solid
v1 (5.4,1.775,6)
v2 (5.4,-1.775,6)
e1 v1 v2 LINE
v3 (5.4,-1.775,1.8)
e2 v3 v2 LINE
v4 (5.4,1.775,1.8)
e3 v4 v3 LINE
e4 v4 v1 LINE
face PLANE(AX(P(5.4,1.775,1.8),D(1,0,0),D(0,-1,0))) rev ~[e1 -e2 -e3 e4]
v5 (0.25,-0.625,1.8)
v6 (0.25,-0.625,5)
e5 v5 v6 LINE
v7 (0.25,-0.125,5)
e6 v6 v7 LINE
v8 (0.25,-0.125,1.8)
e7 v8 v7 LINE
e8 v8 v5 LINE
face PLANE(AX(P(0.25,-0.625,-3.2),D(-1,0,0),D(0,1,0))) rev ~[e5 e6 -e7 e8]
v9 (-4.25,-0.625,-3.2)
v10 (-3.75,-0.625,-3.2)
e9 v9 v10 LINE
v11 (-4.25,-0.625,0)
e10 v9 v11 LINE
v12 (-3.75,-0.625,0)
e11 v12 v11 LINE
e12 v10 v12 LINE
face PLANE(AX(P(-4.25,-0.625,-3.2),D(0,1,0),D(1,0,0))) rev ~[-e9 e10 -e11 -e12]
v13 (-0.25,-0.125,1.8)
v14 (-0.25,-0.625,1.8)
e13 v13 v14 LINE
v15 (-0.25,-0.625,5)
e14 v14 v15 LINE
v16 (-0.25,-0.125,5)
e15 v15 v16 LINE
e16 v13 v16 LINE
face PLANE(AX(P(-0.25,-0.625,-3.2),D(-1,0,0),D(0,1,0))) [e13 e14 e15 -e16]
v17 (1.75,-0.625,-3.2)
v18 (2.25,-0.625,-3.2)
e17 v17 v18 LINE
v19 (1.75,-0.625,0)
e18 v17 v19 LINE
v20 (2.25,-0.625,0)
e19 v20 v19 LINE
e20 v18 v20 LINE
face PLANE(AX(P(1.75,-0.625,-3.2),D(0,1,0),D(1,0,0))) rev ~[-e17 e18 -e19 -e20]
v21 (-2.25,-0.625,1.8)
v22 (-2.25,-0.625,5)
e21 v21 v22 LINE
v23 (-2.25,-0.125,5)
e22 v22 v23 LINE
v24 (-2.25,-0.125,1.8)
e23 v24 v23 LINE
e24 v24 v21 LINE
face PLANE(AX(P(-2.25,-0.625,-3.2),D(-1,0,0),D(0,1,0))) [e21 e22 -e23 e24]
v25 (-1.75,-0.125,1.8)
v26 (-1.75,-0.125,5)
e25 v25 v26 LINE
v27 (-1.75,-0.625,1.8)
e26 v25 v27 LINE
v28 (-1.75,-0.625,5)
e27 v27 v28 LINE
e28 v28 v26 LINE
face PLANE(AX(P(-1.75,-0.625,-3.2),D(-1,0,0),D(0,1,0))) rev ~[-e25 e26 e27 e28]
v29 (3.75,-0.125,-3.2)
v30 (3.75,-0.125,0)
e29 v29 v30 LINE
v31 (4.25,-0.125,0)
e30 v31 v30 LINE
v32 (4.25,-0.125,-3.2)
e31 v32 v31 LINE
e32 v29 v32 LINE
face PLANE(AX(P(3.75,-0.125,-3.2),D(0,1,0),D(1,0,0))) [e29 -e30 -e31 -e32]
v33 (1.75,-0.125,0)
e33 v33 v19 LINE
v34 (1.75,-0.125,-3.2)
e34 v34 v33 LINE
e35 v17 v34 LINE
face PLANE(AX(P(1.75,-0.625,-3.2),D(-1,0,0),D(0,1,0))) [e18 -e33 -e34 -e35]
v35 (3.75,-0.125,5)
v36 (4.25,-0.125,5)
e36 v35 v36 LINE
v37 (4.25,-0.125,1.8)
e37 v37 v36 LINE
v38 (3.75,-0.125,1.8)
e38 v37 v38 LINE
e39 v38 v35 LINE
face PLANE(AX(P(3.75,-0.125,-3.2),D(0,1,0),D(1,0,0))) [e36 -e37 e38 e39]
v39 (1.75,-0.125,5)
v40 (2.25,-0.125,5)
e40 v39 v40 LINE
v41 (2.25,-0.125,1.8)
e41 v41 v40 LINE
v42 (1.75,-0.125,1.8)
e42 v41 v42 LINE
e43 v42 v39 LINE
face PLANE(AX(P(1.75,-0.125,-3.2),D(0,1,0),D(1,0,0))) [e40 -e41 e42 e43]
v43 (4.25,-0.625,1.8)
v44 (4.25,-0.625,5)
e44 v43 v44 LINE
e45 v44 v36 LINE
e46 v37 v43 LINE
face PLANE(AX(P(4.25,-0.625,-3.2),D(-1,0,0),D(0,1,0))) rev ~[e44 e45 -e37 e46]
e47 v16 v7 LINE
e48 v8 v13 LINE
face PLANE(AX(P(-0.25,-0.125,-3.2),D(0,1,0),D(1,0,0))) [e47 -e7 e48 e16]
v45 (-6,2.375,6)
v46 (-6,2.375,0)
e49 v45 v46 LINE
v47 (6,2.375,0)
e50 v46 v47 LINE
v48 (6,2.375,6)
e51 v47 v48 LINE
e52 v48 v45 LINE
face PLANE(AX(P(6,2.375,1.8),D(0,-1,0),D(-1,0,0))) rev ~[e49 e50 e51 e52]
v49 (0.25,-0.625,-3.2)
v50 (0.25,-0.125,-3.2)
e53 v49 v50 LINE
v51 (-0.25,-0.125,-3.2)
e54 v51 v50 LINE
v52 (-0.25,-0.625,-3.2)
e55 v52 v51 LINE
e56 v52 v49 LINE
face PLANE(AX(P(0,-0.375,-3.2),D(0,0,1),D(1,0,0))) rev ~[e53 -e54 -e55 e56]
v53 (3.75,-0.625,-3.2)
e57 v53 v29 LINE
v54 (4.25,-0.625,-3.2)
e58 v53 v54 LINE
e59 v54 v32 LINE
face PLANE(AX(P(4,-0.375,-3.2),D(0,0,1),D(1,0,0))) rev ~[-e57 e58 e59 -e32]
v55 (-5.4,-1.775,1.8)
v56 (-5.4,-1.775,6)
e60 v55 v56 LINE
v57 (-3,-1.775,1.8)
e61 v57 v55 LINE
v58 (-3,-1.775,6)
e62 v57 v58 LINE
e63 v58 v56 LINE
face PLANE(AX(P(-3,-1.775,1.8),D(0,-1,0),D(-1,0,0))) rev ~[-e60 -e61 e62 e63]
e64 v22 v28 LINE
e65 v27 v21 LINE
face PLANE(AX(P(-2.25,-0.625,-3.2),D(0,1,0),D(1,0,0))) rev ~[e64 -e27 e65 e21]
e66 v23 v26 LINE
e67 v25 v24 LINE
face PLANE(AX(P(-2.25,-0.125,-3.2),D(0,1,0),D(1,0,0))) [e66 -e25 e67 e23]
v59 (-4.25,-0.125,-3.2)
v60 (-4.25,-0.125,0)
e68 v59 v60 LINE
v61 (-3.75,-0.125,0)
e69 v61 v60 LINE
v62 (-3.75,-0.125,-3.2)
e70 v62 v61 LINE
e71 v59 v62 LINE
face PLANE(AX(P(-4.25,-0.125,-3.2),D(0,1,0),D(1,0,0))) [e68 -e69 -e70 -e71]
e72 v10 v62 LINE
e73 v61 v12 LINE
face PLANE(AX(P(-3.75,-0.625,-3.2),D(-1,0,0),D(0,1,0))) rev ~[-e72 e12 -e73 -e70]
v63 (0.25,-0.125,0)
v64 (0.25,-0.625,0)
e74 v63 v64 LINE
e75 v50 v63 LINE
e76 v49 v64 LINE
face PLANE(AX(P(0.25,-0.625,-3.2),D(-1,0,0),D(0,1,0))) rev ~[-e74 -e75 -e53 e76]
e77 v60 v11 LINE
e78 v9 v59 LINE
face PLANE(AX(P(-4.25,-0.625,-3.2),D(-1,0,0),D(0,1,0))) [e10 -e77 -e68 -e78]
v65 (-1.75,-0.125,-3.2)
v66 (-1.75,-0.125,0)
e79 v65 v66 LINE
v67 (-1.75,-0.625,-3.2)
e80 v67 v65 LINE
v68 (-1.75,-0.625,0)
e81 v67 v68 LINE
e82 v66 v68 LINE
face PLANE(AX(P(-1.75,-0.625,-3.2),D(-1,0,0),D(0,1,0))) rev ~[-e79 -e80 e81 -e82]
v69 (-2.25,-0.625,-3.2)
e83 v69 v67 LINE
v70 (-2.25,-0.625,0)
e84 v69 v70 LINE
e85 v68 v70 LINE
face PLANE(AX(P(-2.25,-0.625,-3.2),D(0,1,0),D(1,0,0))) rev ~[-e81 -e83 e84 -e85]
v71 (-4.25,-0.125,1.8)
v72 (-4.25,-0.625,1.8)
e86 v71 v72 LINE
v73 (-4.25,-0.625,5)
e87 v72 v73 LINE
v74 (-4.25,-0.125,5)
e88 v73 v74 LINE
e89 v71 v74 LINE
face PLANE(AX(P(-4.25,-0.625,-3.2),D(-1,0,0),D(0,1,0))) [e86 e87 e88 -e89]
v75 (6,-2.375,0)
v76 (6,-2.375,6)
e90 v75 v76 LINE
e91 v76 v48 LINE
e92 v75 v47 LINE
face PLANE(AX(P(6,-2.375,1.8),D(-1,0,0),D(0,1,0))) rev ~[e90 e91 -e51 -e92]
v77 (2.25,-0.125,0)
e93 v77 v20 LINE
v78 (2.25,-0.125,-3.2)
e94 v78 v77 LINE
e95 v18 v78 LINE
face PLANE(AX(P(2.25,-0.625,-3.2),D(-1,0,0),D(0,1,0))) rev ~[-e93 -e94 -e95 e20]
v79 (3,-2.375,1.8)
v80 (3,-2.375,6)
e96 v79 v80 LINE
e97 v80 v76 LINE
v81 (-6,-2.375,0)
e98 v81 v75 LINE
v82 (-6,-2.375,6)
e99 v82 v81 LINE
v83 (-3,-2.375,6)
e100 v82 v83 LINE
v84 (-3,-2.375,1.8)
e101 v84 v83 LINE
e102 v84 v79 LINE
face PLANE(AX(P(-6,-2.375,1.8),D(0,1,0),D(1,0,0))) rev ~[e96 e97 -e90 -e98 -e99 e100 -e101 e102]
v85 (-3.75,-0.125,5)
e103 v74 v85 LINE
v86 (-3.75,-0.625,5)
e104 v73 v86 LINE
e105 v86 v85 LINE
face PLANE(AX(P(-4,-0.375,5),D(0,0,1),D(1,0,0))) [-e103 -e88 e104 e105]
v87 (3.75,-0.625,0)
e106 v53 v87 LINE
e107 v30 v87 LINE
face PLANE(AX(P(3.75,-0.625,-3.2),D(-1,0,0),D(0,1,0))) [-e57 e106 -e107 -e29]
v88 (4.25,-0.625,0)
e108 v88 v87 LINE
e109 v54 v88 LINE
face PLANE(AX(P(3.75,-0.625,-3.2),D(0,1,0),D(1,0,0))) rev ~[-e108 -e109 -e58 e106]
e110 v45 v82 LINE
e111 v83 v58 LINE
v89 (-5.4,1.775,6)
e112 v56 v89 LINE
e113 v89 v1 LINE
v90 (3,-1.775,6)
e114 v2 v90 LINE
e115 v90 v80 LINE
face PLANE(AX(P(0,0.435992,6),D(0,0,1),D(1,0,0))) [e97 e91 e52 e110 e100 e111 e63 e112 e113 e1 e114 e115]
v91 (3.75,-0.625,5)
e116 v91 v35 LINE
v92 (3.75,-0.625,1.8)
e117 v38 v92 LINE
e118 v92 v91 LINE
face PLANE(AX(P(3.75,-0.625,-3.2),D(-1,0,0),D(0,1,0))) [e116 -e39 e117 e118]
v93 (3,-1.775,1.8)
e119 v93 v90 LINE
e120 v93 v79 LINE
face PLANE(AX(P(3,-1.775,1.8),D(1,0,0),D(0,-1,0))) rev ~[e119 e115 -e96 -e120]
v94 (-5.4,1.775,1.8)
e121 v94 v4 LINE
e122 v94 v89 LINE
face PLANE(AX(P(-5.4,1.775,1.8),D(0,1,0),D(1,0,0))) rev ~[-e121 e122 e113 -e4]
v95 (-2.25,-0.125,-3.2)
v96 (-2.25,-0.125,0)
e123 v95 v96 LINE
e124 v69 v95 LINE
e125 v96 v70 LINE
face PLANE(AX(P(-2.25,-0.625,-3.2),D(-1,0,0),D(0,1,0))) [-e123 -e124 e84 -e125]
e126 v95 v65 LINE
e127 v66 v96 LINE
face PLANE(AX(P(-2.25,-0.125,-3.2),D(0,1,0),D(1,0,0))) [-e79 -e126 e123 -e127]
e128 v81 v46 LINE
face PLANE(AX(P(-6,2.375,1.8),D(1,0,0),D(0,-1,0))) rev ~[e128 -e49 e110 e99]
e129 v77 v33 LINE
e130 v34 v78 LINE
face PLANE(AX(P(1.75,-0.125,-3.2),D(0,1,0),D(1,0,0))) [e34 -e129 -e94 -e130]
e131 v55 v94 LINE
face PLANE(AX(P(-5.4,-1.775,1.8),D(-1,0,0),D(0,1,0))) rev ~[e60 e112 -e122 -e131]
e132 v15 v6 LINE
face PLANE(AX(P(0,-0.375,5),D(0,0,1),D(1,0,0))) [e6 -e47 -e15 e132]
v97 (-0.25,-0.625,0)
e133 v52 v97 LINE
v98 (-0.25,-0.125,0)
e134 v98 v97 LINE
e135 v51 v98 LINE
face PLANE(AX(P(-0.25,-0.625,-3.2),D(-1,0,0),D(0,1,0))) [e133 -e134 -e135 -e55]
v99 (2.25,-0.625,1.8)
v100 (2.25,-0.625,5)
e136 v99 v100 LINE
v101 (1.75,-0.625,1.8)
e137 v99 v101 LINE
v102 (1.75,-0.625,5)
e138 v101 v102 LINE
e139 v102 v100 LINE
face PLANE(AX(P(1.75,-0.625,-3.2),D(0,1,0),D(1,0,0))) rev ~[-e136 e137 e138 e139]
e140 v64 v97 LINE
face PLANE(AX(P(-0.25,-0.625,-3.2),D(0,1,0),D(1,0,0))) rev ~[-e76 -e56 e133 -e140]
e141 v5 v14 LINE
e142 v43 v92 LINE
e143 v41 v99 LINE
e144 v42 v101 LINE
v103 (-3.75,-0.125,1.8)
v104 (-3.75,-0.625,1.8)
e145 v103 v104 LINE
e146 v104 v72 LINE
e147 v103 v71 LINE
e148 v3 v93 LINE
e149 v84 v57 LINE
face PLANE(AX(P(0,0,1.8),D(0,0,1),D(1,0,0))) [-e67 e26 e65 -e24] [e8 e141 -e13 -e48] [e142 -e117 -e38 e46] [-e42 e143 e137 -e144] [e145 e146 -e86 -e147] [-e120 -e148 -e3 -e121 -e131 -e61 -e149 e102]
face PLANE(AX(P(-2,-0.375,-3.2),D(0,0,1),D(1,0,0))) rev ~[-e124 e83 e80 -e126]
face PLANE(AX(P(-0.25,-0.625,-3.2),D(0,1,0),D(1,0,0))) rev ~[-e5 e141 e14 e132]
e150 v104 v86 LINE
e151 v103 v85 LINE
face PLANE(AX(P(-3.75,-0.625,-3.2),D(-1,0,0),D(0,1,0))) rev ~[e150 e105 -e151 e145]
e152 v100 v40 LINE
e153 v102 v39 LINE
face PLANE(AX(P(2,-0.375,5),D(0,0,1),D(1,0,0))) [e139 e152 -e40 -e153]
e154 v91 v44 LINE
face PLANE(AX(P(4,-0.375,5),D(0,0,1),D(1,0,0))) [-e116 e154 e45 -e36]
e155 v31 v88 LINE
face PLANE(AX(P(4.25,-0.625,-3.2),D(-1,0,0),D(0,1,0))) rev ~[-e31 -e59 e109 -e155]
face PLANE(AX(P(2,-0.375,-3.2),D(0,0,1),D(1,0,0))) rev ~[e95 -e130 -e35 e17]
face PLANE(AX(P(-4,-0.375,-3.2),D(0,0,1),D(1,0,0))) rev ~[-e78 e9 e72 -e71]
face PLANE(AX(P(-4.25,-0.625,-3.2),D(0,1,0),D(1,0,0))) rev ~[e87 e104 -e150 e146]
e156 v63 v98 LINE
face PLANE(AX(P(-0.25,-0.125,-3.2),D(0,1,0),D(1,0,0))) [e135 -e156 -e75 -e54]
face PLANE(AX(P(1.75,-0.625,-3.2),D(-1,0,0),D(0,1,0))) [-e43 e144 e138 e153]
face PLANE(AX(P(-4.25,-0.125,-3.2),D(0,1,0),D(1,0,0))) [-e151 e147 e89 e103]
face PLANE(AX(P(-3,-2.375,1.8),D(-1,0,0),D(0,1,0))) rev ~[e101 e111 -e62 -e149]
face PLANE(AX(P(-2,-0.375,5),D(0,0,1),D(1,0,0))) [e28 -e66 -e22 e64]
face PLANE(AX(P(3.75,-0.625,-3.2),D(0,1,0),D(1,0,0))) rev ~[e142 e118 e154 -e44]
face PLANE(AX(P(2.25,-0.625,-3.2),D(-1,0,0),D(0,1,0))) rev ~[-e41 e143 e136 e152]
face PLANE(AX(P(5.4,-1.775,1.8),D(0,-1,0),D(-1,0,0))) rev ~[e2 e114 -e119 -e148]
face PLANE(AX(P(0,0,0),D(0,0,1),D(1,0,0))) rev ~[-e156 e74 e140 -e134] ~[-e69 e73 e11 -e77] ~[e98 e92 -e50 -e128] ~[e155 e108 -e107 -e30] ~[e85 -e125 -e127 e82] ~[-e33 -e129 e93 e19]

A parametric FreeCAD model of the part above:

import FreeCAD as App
import Part
import Sketcher

V = App.Vector
Q = App.Units.Quantity


def add_polygon(sketch, points):
    """Adds a closed chain of lines whose ends are joined by coincident constraints."""
    first, n = sketch.GeometryCount, len(points)
    for a, b in zip(points, points[1:] + points[:1]):
        sketch.addGeometry(Part.LineSegment(App.Vector(*a, 0), App.Vector(*b, 0)), False)
    for i in range(n):
        sketch.addConstraint(Sketcher.Constraint("Coincident", first + i, 2, first + (i + 1) % n, 1))

doc = App.newDocument("Part")
body = doc.addObject("PartDesign::Body", "Body")

# Sketch on XY plane
sketch1 = body.newObject("Sketcher::SketchObject", "Sketch")
sketch1.AttachmentSupport = (doc.getObject("XY_Plane"), [""])
sketch1.MapMode = "FlatFace"
add_polygon(sketch1, [(-6, 2.4), (-6, -2.4), (6, -2.4), (6, 2.4)])  # lines 0-3
sketch1.addConstraint([
    Sketcher.Constraint("Vertical", 0),
    Sketcher.Constraint("Horizontal", 1),
    Sketcher.Constraint("Vertical", 2),
    Sketcher.Constraint("Horizontal", 3),
    Sketcher.Constraint("Symmetric", 0, 2, 2, 2, -1, 1),
    Sketcher.Constraint("DistanceX", 1, 1, 1, 2, Q("12 mm")),
    Sketcher.Constraint("DistanceY", 0, 2, 0, 1, Q("4.75 mm")),
])
pad1 = body.newObject("PartDesign::Pad", "Pad")
pad1.Profile = sketch1
pad1.Length = 1.8

# Sketch on XY plane
sketch2 = body.newObject("Sketcher::SketchObject", "Sketch001")
sketch2.AttachmentSupport = (doc.getObject("XY_Plane"), [""])
sketch2.MapMode = "FlatFace"
sketch2.AttachmentOffset = App.Placement(V(0, 0, 1.8), App.Rotation())
add_polygon(sketch2, [(-3, -2.4), (-3, -1.8), (-5.4, -1.8), (-5.4, 1.8), (5.4, 1.8), (5.4, -1.8), (3, -1.8), (3, -2.4), (6, -2.4), (6, 2.4), (-6, 2.4), (-6, -2.4)])  # lines 0-11
sketch2.addConstraint([
    Sketcher.Constraint("Vertical", 0),
    Sketcher.Constraint("Horizontal", 1),
    Sketcher.Constraint("Vertical", 2),
    Sketcher.Constraint("Horizontal", 3),
    Sketcher.Constraint("Vertical", 4),
    Sketcher.Constraint("Horizontal", 5),
    Sketcher.Constraint("Vertical", 6),
    Sketcher.Constraint("Horizontal", 7),
    Sketcher.Constraint("Vertical", 8),
    Sketcher.Constraint("Horizontal", 9),
    Sketcher.Constraint("Vertical", 10),
    Sketcher.Constraint("Horizontal", 11),
    Sketcher.Constraint("Symmetric", 1, 2, 3, 2, -1, 1),
    Sketcher.Constraint("Symmetric", 7, 2, 9, 2, -1, 1),
    Sketcher.Constraint("Symmetric", 0, 2, 5, 2, -2),
    Sketcher.Constraint("Horizontal", 7, 2, 10, 2),
    Sketcher.Constraint("DistanceX", 7, 1, 7, 2, Q("3 mm")),
    Sketcher.Constraint("DistanceX", 9, 2, 9, 1, Q("12 mm")),
    Sketcher.Constraint("DistanceX", 1, 2, 1, 1, Q("2.4 mm")),
    Sketcher.Constraint("DistanceY", 0, 1, 0, 2, Q("0.6 mm")),
    Sketcher.Constraint("DistanceY", 2, 1, 2, 2, Q("3.55 mm")),
])
pad2 = body.newObject("PartDesign::Pad", "Pad001")
pad2.Profile = sketch2
pad2.Length = 4.2

# Sketch on XY plane
sketch3 = body.newObject("Sketcher::SketchObject", "Sketch002")
sketch3.AttachmentSupport = (doc.getObject("XY_Plane"), [""])
sketch3.MapMode = "FlatFace"
sketch3.AttachmentOffset = App.Placement(V(0, 0, -3.2), App.Rotation())
add_polygon(sketch3, [(-4.2, -0.1), (-4.2, -0.6), (-3.8, -0.6), (-3.8, -0.1)])  # lines 0-3
sketch3.addConstraint([
    Sketcher.Constraint("Vertical", 0),
    Sketcher.Constraint("Horizontal", 1),
    Sketcher.Constraint("Vertical", 2),
    Sketcher.Constraint("Horizontal", 3),
    Sketcher.Constraint("Equal", 3, 0),
    Sketcher.Constraint("DistanceX", 1, 1, 1, 2, Q("0.5 mm")),
    Sketcher.Constraint("DistanceX", 0, 2, -1, 1, Q("4.25 mm")),
    Sketcher.Constraint("DistanceY", 0, 2, -1, 1, Q("0.625 mm")),
])
pad3 = body.newObject("PartDesign::Pad", "Pad002")
pad3.Profile = sketch3
pad3.Length = 8.2
doc.recompute()

linearpattern = body.newObject("PartDesign::LinearPattern", "LinearPattern")
linearpattern.Originals = [pad3]
linearpattern.Direction = (doc.getObject("X_Axis"), [""])
linearpattern.Mode = "offset"
linearpattern.Offset = 2
linearpattern.Occurrences = 5
body.Tip = linearpattern

doc.recompute()
